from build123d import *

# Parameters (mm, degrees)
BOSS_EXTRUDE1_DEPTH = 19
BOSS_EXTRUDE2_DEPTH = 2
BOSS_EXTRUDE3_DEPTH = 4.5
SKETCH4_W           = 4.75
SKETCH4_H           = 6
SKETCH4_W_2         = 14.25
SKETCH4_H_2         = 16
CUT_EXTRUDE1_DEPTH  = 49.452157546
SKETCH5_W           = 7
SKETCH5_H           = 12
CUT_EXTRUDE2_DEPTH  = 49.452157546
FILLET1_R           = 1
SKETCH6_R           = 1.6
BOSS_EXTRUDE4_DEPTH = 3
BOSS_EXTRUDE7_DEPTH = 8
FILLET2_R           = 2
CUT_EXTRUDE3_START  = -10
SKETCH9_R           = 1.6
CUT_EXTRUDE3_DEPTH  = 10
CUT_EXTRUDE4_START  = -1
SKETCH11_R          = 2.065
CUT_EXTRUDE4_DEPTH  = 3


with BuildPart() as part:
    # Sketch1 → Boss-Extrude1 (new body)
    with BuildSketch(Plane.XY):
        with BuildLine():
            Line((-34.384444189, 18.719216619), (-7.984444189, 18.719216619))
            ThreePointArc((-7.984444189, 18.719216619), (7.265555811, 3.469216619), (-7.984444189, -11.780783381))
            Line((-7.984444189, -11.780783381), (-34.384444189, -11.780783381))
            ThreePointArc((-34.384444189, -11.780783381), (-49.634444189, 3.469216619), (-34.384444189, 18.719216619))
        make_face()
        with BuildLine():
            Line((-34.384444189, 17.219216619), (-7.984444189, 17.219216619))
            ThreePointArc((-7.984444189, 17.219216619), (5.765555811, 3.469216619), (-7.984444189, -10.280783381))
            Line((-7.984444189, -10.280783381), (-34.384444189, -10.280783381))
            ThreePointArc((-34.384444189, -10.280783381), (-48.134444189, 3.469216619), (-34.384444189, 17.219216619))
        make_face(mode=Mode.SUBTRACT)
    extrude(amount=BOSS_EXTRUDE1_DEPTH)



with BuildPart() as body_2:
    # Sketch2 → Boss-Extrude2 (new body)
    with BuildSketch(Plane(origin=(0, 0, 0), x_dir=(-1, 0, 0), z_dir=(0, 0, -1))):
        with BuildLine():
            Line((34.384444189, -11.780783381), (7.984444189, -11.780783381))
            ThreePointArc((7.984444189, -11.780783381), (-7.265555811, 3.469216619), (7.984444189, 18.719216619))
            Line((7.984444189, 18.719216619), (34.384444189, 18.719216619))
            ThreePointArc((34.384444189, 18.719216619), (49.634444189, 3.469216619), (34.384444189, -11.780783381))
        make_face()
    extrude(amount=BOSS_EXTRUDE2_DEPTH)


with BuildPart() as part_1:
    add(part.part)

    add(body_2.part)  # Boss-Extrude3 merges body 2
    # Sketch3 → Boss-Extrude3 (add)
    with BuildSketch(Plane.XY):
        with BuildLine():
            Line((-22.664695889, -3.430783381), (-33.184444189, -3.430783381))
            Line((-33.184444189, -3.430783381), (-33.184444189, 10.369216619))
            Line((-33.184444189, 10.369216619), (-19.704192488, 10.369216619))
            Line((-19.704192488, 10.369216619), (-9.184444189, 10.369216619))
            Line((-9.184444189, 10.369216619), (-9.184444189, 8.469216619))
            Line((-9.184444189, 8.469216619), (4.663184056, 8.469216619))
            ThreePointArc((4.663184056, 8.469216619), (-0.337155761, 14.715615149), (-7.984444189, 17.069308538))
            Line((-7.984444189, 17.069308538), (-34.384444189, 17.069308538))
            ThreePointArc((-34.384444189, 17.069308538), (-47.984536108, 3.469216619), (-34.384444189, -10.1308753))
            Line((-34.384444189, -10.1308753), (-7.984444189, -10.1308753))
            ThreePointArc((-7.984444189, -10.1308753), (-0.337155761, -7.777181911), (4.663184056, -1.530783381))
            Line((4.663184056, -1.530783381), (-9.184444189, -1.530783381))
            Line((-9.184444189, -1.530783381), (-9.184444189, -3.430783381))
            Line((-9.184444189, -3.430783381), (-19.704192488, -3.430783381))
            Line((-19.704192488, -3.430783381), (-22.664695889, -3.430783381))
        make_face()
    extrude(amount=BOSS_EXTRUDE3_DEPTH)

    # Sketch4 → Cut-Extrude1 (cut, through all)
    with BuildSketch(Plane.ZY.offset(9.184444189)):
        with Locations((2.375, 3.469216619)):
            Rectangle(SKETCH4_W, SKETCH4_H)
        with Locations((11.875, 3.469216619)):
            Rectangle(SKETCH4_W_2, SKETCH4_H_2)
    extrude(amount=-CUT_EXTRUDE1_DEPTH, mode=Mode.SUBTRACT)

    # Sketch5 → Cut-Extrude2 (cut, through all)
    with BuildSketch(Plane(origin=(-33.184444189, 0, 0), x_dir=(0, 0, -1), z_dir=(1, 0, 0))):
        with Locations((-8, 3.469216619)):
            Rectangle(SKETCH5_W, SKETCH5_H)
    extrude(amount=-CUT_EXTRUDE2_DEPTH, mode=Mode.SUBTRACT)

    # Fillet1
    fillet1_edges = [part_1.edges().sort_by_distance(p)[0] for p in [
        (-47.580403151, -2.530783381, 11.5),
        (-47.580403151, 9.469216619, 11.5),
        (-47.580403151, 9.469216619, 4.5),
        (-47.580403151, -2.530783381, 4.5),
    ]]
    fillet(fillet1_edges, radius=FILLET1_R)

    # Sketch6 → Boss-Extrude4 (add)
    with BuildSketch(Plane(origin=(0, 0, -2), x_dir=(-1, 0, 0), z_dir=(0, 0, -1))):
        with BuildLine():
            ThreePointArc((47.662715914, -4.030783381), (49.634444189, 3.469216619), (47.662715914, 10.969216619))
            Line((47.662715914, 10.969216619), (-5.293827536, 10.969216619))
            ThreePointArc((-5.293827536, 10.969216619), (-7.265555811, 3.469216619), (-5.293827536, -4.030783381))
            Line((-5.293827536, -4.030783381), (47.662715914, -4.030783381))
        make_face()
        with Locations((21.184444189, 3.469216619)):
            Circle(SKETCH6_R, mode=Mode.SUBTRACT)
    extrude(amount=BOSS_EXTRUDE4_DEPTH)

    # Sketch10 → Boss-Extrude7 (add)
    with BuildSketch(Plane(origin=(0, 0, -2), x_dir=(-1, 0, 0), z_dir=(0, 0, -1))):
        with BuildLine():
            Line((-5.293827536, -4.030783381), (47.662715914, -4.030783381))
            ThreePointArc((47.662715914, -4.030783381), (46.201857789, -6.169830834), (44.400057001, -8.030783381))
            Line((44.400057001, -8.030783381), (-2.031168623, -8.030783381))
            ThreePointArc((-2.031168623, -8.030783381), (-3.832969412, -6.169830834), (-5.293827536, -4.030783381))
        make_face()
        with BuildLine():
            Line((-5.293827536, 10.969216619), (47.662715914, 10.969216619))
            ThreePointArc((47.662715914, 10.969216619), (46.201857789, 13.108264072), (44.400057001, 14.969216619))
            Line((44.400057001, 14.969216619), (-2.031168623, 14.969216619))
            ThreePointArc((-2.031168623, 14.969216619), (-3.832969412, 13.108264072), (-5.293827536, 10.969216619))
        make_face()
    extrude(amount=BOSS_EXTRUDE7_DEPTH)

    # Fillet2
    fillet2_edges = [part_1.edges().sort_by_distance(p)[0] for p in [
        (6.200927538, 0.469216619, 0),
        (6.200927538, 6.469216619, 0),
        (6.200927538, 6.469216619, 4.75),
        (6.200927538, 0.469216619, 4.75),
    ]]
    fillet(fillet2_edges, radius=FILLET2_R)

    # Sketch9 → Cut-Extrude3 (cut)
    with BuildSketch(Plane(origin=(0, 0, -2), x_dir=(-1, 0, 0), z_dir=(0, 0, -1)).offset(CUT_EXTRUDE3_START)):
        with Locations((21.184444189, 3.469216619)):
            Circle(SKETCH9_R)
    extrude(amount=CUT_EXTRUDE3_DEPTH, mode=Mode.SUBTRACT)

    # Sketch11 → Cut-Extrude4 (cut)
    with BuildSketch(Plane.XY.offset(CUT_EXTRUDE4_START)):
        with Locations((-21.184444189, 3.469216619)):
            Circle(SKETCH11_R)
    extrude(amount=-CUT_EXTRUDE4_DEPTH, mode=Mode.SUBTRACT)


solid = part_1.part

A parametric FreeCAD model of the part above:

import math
import FreeCAD as App
import Part
import Sketcher
Q = App.Units.Quantity


def edges_at(feature, points):
    """Names of the edges that pass closest to the given points."""
    edges = feature.Shape.Edges
    near = lambda p: min(range(len(edges)), key=lambda i: edges[i].distToShape(Part.Vertex(*p))[0])
    return sorted({f"Edge{near(p) + 1}" for p in points})


def add_polygon(sketch, points):
    """Adds a closed chain of lines whose ends are joined by coincident constraints."""
    first, n = sketch.GeometryCount, len(points)
    for a, b in zip(points, points[1:] + points[:1]):
        sketch.addGeometry(Part.LineSegment(App.Vector(*a, 0), App.Vector(*b, 0)), False)
    for i in range(n):
        sketch.addConstraint(Sketcher.Constraint("Coincident", first + i, 2, first + (i + 1) % n, 1))

doc = App.newDocument("Part")
body = doc.addObject("PartDesign::Body", "Body")

# Sketch on XY plane
sketch1 = body.newObject("Sketcher::SketchObject", "Sketch")
sketch1.AttachmentSupport = (doc.getObject("XY_Plane"), [""])
sketch1.MapMode = "FlatFace"
sketch1.addGeometry([
    Part.LineSegment(App.Vector(-8, 19, 0), App.Vector(-34, 19, 0)),  # 0
    Part.ArcOfCircle(Part.Circle(App.Vector(-34, 3, 0), App.Vector(0, 0, 1), 15), math.radians(90), math.radians(270)),  # 1
    Part.LineSegment(App.Vector(-34, -12, 0), App.Vector(-8, -12, 0)),  # 2
    Part.ArcOfCircle(Part.Circle(App.Vector(-8, 3, 0), App.Vector(0, 0, 1), 15), math.radians(-90), math.radians(90)),  # 3
    Part.LineSegment(App.Vector(-34, 17, 0), App.Vector(-8, 17, 0)),  # 4
    Part.ArcOfCircle(Part.Circle(App.Vector(-8, 3, 0), App.Vector(0, 0, 1), 14), math.radians(-90), math.radians(90)),  # 5
    Part.LineSegment(App.Vector(-8, -10, 0), App.Vector(-34, -10, 0)),  # 6
    Part.ArcOfCircle(Part.Circle(App.Vector(-34, 3, 0), App.Vector(0, 0, 1), 14), math.radians(90), math.radians(270)),  # 7
], False)
sketch1.addConstraint([
    Sketcher.Constraint("Tangent", 0, 2, 1, 1),
    Sketcher.Constraint("Tangent", 1, 2, 2, 1),
    Sketcher.Constraint("Tangent", 2, 2, 3, 1),
    Sketcher.Constraint("Tangent", 3, 2, 0, 1),
    Sketcher.Constraint("Tangent", 4, 2, 5, 2),
    Sketcher.Constraint("Tangent", 5, 1, 6, 1),
    Sketcher.Constraint("Tangent", 6, 2, 7, 2),
    Sketcher.Constraint("Tangent", 7, 1, 4, 1),
    Sketcher.Constraint("Horizontal", 0),
    Sketcher.Constraint("Horizontal", 2),
    Sketcher.Constraint("Horizontal", 4),
    Sketcher.Constraint("Horizontal", 6),
    Sketcher.Constraint("Coincident", 5, 3, 3, 3),
    Sketcher.Constraint("Vertical", 7, 3, 0, 2),
    Sketcher.Constraint("Radius", 1, Q("15.25 mm")),
    Sketcher.Constraint("Radius", 5, Q("13.75 mm")),
    Sketcher.Constraint("DistanceX", 0, 2, 0, 1, Q("26.4 mm")),
    Sketcher.Constraint("DistanceX", 1, 3, -1, 1, Q("34.384444 mm")),
    Sketcher.Constraint("DistanceY", -1, 1, 1, 3, Q("3.469217 mm")),
])
pad1 = body.newObject("PartDesign::Pad", "Pad")
pad1.Profile = sketch1
pad1.Length = 19
body2 = doc.addObject("PartDesign::Body", "Body001")

# Sketch on XY plane
sketch2 = body2.newObject("Sketcher::SketchObject", "Sketch001")
sketch2.AttachmentSupport = (doc.getObject("XY_Plane001"), [""])
sketch2.MapMode = "FlatFace"
sketch2.addGeometry([
    Part.LineSegment(App.Vector(-8, -12, 0), App.Vector(-34, -12, 0)),
    Part.ArcOfCircle(Part.Circle(App.Vector(-34, 3, 0), App.Vector(0, 0, 1), 15), math.radians(90), math.radians(270)),
    Part.LineSegment(App.Vector(-34, 19, 0), App.Vector(-8, 19, 0)),
    Part.ArcOfCircle(Part.Circle(App.Vector(-8, 3, 0), App.Vector(0, 0, 1), 15), math.radians(-90), math.radians(90)),
], False)
sketch2.addConstraint([
    Sketcher.Constraint("Tangent", 0, 2, 1, 2),
    Sketcher.Constraint("Tangent", 1, 1, 2, 1),
    Sketcher.Constraint("Tangent", 2, 2, 3, 2),
    Sketcher.Constraint("Tangent", 3, 1, 0, 1),
    Sketcher.Constraint("Horizontal", 0),
    Sketcher.Constraint("Horizontal", 2),
    Sketcher.Constraint("Radius", 1, Q("15.25 mm")),
    Sketcher.Constraint("DistanceX", 0, 2, 0, 1, Q("26.4 mm")),
    Sketcher.Constraint("DistanceX", 1, 3, -1, 1, Q("34.384444 mm")),
    Sketcher.Constraint("DistanceY", -1, 1, 1, 3, Q("3.469217 mm")),
])
pad2 = body2.newObject("PartDesign::Pad", "Pad001")
pad2.Profile = sketch2
pad2.Length = 2
pad2.Reversed = True
doc.recompute()

boolean = body.newObject("PartDesign::Boolean", "Boolean")
boolean.Type = "Fuse"
boolean.addObjects([body2])

# Sketch on XY plane
sketch3 = body.newObject("Sketcher::SketchObject", "Sketch002")
sketch3.AttachmentSupport = (doc.getObject("XY_Plane"), [""])
sketch3.MapMode = "FlatFace"
sketch3.addGeometry([
    Part.LineSegment(App.Vector(-33.2, -3.4, 0), App.Vector(-33.2, 10.4, 0)),  # 0
    Part.LineSegment(App.Vector(-33.2, 10.4, 0), App.Vector(-9.2, 10.4, 0)),  # 1
    Part.LineSegment(App.Vector(-9.2, 10.4, 0), App.Vector(-9.2, 8.5, 0)),  # 2
    Part.LineSegment(App.Vector(-9.2, 8.5, 0), App.Vector(4.7, 8.5, 0)),  # 3
    Part.ArcOfCircle(Part.Circle(App.Vector(-8, 3.5, 0), App.Vector(0, 0, 1), 13.6), math.radians(22), math.radians(90)),  # 4
    Part.LineSegment(App.Vector(-8, 17.1, 0), App.Vector(-34.4, 17.1, 0)),  # 5
    Part.ArcOfCircle(Part.Circle(App.Vector(-34.4, 3.5, 0), App.Vector(0, 0, 1), 13.6), math.radians(90), math.radians(270)),  # 6
    Part.LineSegment(App.Vector(-34.4, -10.1, 0), App.Vector(-8, -10.1, 0)),  # 7
    Part.ArcOfCircle(Part.Circle(App.Vector(-8, 3.5, 0), App.Vector(0, 0, 1), 13.6), math.radians(-90), math.radians(-22)),  # 8
    Part.LineSegment(App.Vector(4.7, -1.5, 0), App.Vector(-9.2, -1.5, 0)),  # 9
    Part.LineSegment(App.Vector(-9.2, -1.5, 0), App.Vector(-9.2, -3.4, 0)),  # 10
    Part.LineSegment(App.Vector(-9.2, -3.4, 0), App.Vector(-33.2, -3.4, 0)),  # 11
], False)
sketch3.addConstraint([
    Sketcher.Constraint("Coincident", 0, 2, 1, 1),
    Sketcher.Constraint("Coincident", 1, 2, 2, 1),
    Sketcher.Constraint("Coincident", 2, 2, 3, 1),
    Sketcher.Constraint("Coincident", 3, 2, 4, 1),
    Sketcher.Constraint("Tangent", 4, 2, 5, 1),
    Sketcher.Constraint("Tangent", 5, 2, 6, 1),
    Sketcher.Constraint("Tangent", 6, 2, 7, 1),
    Sketcher.Constraint("Tangent", 7, 2, 8, 1),
    Sketcher.Constraint("Coincident", 8, 2, 9, 1),
    Sketcher.Constraint("Coincident", 9, 2, 10, 1),
    Sketcher.Constraint("Coincident", 10, 2, 11, 1),
    Sketcher.Constraint("Coincident", 11, 2, 0, 1),
    Sketcher.Constraint("Vertical", 0),
    Sketcher.Constraint("Horizontal", 1),
    Sketcher.Constraint("Vertical", 2),
    Sketcher.Constraint("Horizontal", 3),
    Sketcher.Constraint("Horizontal", 5),
    Sketcher.Constraint("Horizontal", 7),
    Sketcher.Constraint("Horizontal", 9),
    Sketcher.Constraint("Vertical", 10),
    Sketcher.Constraint("Horizontal", 11),
    Sketcher.Constraint("Coincident", 8, 3, 4, 3),
    Sketcher.Constraint("Equal", 4, 6),
    Sketcher.Constraint("Vertical", 3, 2, 8, 2),
    Sketcher.Constraint("Vertical", 2, 2, 9, 2),
    Sketcher.Constraint("Equal", 2, 10),
    Sketcher.Constraint("DistanceX", 1, 1, 1, 2, Q("24 mm")),
    Sketcher.Constraint("DistanceX", 5, 2, 5, 1, Q("26.4 mm")),
    Sketcher.Constraint("DistanceY", 0, 1, 0, 2, Q("13.8 mm")),
    Sketcher.Constraint("DistanceY", 2, 2, 2, 1, Q("1.9 mm")),
    Sketcher.Constraint("DistanceX", 6, 3, 0, 2, Q("1.2 mm")),
    Sketcher.Constraint("Radius", 4, Q("13.600092 mm")),
    Sketcher.Constraint("DistanceY", -1, 1, 4, 2, Q("17.069309 mm")),
    Sketcher.Constraint("DistanceX", 4, 3, -1, 1, Q("7.984444 mm")),
])
pad3 = body.newObject("PartDesign::Pad", "Pad002")
pad3.Profile = sketch3
pad3.Length = 4.5

# Sketch on YZ plane
sketch4 = body.newObject("Sketcher::SketchObject", "Sketch003")
sketch4.AttachmentSupport = (doc.getObject("YZ_Plane"), [""])
sketch4.MapMode = "FlatFace"
sketch4.AttachmentOffset = App.Placement(App.Vector(0, 0, -9.184444), App.Rotation())
add_polygon(sketch4, [(6.5, 0), (0.5, 0), (0.5, 4.8), (-4.5, 4.8), (-4.5, 19), (11.5, 19), (11.5, 4.8), (6.5, 4.8)])  # lines 0-7
sketch4.addConstraint([
    Sketcher.Constraint("Horizontal", 0),
    Sketcher.Constraint("Vertical", 1),
    Sketcher.Constraint("Horizontal", 2),
    Sketcher.Constraint("Vertical", 3),
    Sketcher.Constraint("Horizontal", 4),
    Sketcher.Constraint("Vertical", 5),
    Sketcher.Constraint("Horizontal", 6),
    Sketcher.Constraint("Vertical", 7),
    Sketcher.Constraint("PointOnObject", 0, 2, -1),
    Sketcher.Constraint("Horizontal", 2, 2, 5, 2),
    Sketcher.Constraint("Equal", 2, 6),
    Sketcher.Constraint("DistanceX", 0, 2, 0, 1, Q("6 mm")),
    Sketcher.Constraint("DistanceX", 2, 2, 2, 1, Q("5 mm")),
    Sketcher.Constraint("DistanceY", -1, 1, 3, 2, Q("19 mm")),
    Sketcher.Constraint("DistanceY", 1, 1, 1, 2, Q("4.75 mm")),
    Sketcher.Constraint("DistanceX", -1, 1, 0, 2, Q("0.469217 mm")),
])
pocket1 = body.newObject("PartDesign::Pocket", "Pocket")
pocket1.Profile = sketch4
pocket1.Type = "ThroughAll"
pocket1.Reversed = True

# Sketch on YZ plane
sketch5 = body.newObject("Sketcher::SketchObject", "Sketch004")
sketch5.AttachmentSupport = (doc.getObject("YZ_Plane"), [""])
sketch5.MapMode = "FlatFace"
sketch5.AttachmentOffset = App.Placement(App.Vector(0, 0, -33.184444), App.Rotation())
add_polygon(sketch5, [(9, 12), (-3, 12), (-3, 4), (9, 4)])  # lines 0-3
sketch5.addConstraint([
    Sketcher.Constraint("Horizontal", 0),
    Sketcher.Constraint("Vertical", 1),
    Sketcher.Constraint("Horizontal", 2),
    Sketcher.Constraint("Vertical", 3),
    Sketcher.Constraint("DistanceX", 0, 2, 0, 1, Q("12 mm")),
    Sketcher.Constraint("DistanceY", 1, 2, 1, 1, Q("7 mm")),
    Sketcher.Constraint("DistanceY", -1, 1, 0, 2, Q("11.5 mm")),
    Sketcher.Constraint("DistanceX", 0, 2, -1, 1, Q("2.530783 mm")),
])
pocket2 = body.newObject("PartDesign::Pocket", "Pocket001")
pocket2.Profile = sketch5
pocket2.Type = "ThroughAll"
doc.recompute()

fillet = body.newObject("PartDesign::Fillet", "Fillet")
fillet.Base = (pocket2, edges_at(pocket2, [
    (-47.58, -2.531, 11.5),
    (-47.58, 9.469, 11.5),
    (-47.58, 9.469, 4.5),
    (-47.58, -2.531, 4.5),
]))
fillet.Radius = 1

# Sketch on XY plane
sketch6 = body.newObject("Sketcher::SketchObject", "Sketch005")
sketch6.AttachmentSupport = (doc.getObject("XY_Plane"), [""])
sketch6.MapMode = "FlatFace"
sketch6.AttachmentOffset = App.Placement(App.Vector(0, 0, -2), App.Rotation())
sketch6.addGeometry([
    Part.ArcOfCircle(Part.Circle(App.Vector(-34.4, 3.5, 0), App.Vector(0, 0, 1), 15.3), math.radians(151), math.radians(209)),  # 0
    Part.LineSegment(App.Vector(-47.7, 11, 0), App.Vector(5.3, 11, 0)),  # 1
    Part.ArcOfCircle(Part.Circle(App.Vector(-8, 3.5, 0), App.Vector(0, 0, 1), 15.3), math.radians(-29), math.radians(29)),  # 2
    Part.LineSegment(App.Vector(5.3, -4, 0), App.Vector(-47.7, -4, 0)),  # 3
    Part.Circle(App.Vector(-21.2, 3.5, 0), App.Vector(0, 0, 1), 1.6),  # 4
], False)
sketch6.addConstraint([
    Sketcher.Constraint("Coincident", 0, 1, 1, 1),
    Sketcher.Constraint("Coincident", 1, 2, 2, 2),
    Sketcher.Constraint("Coincident", 2, 1, 3, 1),
    Sketcher.Constraint("Coincident", 3, 2, 0, 2),
    Sketcher.Constraint("Horizontal", 1),
    Sketcher.Constraint("Horizontal", 3),
    Sketcher.Constraint("Equal", 0, 2),
    Sketcher.Constraint("Horizontal", 0, 3, 2, 3),
    Sketcher.Constraint("Horizontal", 2, 3, 4, 3),
    Sketcher.Constraint("Vertical", 1, 2, 2, 1),
    Sketcher.Constraint("Diameter", 4, Q("3.2 mm")),
    Sketcher.Constraint("Radius", 0, Q("15.25 mm")),
    Sketcher.Constraint("DistanceY", 2, 1, 1, 2, Q("15 mm")),
    Sketcher.Constraint("DistanceX", 0, 3, 2, 3, Q("26.4 mm")),
    Sketcher.Constraint("DistanceX", 4, 3, 2, 3, Q("13.2 mm")),
    Sketcher.Constraint("DistanceX", 0, 3, -1, 1, Q("34.384444 mm")),
    Sketcher.Constraint("DistanceY", -1, 1, 0, 3, Q("3.469217 mm")),
])
pad4 = body.newObject("PartDesign::Pad", "Pad003")
pad4.Profile = sketch6
pad4.Length = 3
pad4.Reversed = True

# Sketch on XY plane
sketch7 = body.newObject("Sketcher::SketchObject", "Sketch006")
sketch7.AttachmentSupport = (doc.getObject("XY_Plane"), [""])
sketch7.MapMode = "FlatFace"
sketch7.AttachmentOffset = App.Placement(App.Vector(0, 0, -2), App.Rotation())
sketch7.addGeometry([
    Part.LineSegment(App.Vector(-48, -4, 0), App.Vector(5, -4, 0)),  # 0
    Part.ArcOfCircle(Part.Circle(App.Vector(-8, 3, 0), App.Vector(0, 0, 1), 15), math.radians(-48.95), math.radians(-29.46)),  # 1
    Part.LineSegment(App.Vector(2, -8, 0), App.Vector(-44, -8, 0)),  # 2
    Part.ArcOfCircle(Part.Circle(App.Vector(-34, 3, 0), App.Vector(0, 0, 1), 15), math.radians(-150.54), math.radians(-131.05)),  # 3
    Part.LineSegment(App.Vector(5, 11, 0), App.Vector(-48, 11, 0)),  # 4
    Part.ArcOfCircle(Part.Circle(App.Vector(-34, 3, 0), App.Vector(0, 0, 1), 15), math.radians(131.05), math.radians(150.54)),  # 5
    Part.LineSegment(App.Vector(-44, 15, 0), App.Vector(2, 15, 0)),  # 6
    Part.ArcOfCircle(Part.Circle(App.Vector(-8, 3, 0), App.Vector(0, 0, 1), 15), math.radians(29.46), math.radians(48.95)),  # 7
], False)
sketch7.addConstraint([
    Sketcher.Constraint("Coincident", 0, 2, 1, 2),
    Sketcher.Constraint("Coincident", 1, 1, 2, 1),
    Sketcher.Constraint("Coincident", 2, 2, 3, 2),
    Sketcher.Constraint("Coincident", 3, 1, 0, 1),
    Sketcher.Constraint("Coincident", 4, 2, 5, 2),
    Sketcher.Constraint("Coincident", 5, 1, 6, 1),
    Sketcher.Constraint("Coincident", 6, 2, 7, 2),
    Sketcher.Constraint("Coincident", 7, 1, 4, 1),
    Sketcher.Constraint("Horizontal", 0),
    Sketcher.Constraint("Horizontal", 2),
    Sketcher.Constraint("Horizontal", 4),
    Sketcher.Constraint("Horizontal", 6),
    Sketcher.Constraint("Coincident", 5, 3, 3, 3),
    Sketcher.Constraint("Coincident", 7, 3, 1, 3),
    Sketcher.Constraint("Equal", 1, 3),
    Sketcher.Constraint("Equal", 3, 5),
    Sketcher.Constraint("Equal", 5, 7),
    Sketcher.Constraint("Horizontal", 1, 3, 3, 3),
    Sketcher.Constraint("Vertical", 3, 1, 4, 2),
    Sketcher.Constraint("Vertical", 2, 2, 5, 1),
    Sketcher.Constraint("Radius", 1, Q("15.25 mm")),
    Sketcher.Constraint("DistanceY", 1, 1, 0, 2, Q("4 mm")),
    Sketcher.Constraint("DistanceY", 3, 1, 4, 2, Q("15 mm")),
    Sketcher.Constraint("DistanceX", 3, 3, 1, 3, Q("26.4 mm")),
    Sketcher.Constraint("DistanceX", -1, 1, 1, 1, Q("2.031169 mm")),
    Sketcher.Constraint("DistanceY", -1, 1, 1, 3, Q("3.469217 mm")),
])
pad5 = body.newObject("PartDesign::Pad", "Pad004")
pad5.Profile = sketch7
pad5.Length = 8
pad5.Reversed = True
doc.recompute()

fillet2 = body.newObject("PartDesign::Fillet", "Fillet001")
fillet2.Base = (pad5, edges_at(pad5, [
    (6.201, 0.469, 0),
    (6.201, 6.469, 0),
    (6.201, 6.469, 4.75),
    (6.201, 0.469, 4.75),
]))
fillet2.Radius = 2

# Sketch on XY plane
sketch8 = body.newObject("Sketcher::SketchObject", "Sketch007")
sketch8.AttachmentSupport = (doc.getObject("XY_Plane"), [""])
sketch8.MapMode = "FlatFace"
sketch8.AttachmentOffset = App.Placement(App.Vector(0, 0, 8), App.Rotation())
sketch8.addGeometry(Part.Circle(App.Vector(-21.2, 3.5, 0), App.Vector(0, 0, 1), 1.6), False)
sketch8.addConstraint([
    Sketcher.Constraint("Diameter", 0, Q("3.2 mm")),
    Sketcher.Constraint("DistanceX", 0, 3, -1, 1, Q("21.184444 mm")),
    Sketcher.Constraint("DistanceY", -1, 1, 0, 3, Q("3.469217 mm")),
])
pocket3 = body.newObject("PartDesign::Pocket", "Pocket002")
pocket3.Profile = sketch8
pocket3.Length = 10

# Sketch on XY plane
sketch9 = body.newObject("Sketcher::SketchObject", "Sketch008")
sketch9.AttachmentSupport = (doc.getObject("XY_Plane"), [""])
sketch9.MapMode = "FlatFace"
sketch9.AttachmentOffset = App.Placement(App.Vector(0, 0, -1), App.Rotation())
sketch9.addGeometry(Part.Circle(App.Vector(-21.2, 3.5, 0), App.Vector(0, 0, 1), 2.1), False)
sketch9.addConstraint([
    Sketcher.Constraint("Diameter", 0, Q("4.13 mm")),
    Sketcher.Constraint("DistanceX", 0, 3, -1, 1, Q("21.184444 mm")),
    Sketcher.Constraint("DistanceY", -1, 1, 0, 3, Q("3.469217 mm")),
])
pocket4 = body.newObject("PartDesign::Pocket", "Pocket003")
pocket4.Profile = sketch9
pocket4.Length = 3

doc.recompute()
